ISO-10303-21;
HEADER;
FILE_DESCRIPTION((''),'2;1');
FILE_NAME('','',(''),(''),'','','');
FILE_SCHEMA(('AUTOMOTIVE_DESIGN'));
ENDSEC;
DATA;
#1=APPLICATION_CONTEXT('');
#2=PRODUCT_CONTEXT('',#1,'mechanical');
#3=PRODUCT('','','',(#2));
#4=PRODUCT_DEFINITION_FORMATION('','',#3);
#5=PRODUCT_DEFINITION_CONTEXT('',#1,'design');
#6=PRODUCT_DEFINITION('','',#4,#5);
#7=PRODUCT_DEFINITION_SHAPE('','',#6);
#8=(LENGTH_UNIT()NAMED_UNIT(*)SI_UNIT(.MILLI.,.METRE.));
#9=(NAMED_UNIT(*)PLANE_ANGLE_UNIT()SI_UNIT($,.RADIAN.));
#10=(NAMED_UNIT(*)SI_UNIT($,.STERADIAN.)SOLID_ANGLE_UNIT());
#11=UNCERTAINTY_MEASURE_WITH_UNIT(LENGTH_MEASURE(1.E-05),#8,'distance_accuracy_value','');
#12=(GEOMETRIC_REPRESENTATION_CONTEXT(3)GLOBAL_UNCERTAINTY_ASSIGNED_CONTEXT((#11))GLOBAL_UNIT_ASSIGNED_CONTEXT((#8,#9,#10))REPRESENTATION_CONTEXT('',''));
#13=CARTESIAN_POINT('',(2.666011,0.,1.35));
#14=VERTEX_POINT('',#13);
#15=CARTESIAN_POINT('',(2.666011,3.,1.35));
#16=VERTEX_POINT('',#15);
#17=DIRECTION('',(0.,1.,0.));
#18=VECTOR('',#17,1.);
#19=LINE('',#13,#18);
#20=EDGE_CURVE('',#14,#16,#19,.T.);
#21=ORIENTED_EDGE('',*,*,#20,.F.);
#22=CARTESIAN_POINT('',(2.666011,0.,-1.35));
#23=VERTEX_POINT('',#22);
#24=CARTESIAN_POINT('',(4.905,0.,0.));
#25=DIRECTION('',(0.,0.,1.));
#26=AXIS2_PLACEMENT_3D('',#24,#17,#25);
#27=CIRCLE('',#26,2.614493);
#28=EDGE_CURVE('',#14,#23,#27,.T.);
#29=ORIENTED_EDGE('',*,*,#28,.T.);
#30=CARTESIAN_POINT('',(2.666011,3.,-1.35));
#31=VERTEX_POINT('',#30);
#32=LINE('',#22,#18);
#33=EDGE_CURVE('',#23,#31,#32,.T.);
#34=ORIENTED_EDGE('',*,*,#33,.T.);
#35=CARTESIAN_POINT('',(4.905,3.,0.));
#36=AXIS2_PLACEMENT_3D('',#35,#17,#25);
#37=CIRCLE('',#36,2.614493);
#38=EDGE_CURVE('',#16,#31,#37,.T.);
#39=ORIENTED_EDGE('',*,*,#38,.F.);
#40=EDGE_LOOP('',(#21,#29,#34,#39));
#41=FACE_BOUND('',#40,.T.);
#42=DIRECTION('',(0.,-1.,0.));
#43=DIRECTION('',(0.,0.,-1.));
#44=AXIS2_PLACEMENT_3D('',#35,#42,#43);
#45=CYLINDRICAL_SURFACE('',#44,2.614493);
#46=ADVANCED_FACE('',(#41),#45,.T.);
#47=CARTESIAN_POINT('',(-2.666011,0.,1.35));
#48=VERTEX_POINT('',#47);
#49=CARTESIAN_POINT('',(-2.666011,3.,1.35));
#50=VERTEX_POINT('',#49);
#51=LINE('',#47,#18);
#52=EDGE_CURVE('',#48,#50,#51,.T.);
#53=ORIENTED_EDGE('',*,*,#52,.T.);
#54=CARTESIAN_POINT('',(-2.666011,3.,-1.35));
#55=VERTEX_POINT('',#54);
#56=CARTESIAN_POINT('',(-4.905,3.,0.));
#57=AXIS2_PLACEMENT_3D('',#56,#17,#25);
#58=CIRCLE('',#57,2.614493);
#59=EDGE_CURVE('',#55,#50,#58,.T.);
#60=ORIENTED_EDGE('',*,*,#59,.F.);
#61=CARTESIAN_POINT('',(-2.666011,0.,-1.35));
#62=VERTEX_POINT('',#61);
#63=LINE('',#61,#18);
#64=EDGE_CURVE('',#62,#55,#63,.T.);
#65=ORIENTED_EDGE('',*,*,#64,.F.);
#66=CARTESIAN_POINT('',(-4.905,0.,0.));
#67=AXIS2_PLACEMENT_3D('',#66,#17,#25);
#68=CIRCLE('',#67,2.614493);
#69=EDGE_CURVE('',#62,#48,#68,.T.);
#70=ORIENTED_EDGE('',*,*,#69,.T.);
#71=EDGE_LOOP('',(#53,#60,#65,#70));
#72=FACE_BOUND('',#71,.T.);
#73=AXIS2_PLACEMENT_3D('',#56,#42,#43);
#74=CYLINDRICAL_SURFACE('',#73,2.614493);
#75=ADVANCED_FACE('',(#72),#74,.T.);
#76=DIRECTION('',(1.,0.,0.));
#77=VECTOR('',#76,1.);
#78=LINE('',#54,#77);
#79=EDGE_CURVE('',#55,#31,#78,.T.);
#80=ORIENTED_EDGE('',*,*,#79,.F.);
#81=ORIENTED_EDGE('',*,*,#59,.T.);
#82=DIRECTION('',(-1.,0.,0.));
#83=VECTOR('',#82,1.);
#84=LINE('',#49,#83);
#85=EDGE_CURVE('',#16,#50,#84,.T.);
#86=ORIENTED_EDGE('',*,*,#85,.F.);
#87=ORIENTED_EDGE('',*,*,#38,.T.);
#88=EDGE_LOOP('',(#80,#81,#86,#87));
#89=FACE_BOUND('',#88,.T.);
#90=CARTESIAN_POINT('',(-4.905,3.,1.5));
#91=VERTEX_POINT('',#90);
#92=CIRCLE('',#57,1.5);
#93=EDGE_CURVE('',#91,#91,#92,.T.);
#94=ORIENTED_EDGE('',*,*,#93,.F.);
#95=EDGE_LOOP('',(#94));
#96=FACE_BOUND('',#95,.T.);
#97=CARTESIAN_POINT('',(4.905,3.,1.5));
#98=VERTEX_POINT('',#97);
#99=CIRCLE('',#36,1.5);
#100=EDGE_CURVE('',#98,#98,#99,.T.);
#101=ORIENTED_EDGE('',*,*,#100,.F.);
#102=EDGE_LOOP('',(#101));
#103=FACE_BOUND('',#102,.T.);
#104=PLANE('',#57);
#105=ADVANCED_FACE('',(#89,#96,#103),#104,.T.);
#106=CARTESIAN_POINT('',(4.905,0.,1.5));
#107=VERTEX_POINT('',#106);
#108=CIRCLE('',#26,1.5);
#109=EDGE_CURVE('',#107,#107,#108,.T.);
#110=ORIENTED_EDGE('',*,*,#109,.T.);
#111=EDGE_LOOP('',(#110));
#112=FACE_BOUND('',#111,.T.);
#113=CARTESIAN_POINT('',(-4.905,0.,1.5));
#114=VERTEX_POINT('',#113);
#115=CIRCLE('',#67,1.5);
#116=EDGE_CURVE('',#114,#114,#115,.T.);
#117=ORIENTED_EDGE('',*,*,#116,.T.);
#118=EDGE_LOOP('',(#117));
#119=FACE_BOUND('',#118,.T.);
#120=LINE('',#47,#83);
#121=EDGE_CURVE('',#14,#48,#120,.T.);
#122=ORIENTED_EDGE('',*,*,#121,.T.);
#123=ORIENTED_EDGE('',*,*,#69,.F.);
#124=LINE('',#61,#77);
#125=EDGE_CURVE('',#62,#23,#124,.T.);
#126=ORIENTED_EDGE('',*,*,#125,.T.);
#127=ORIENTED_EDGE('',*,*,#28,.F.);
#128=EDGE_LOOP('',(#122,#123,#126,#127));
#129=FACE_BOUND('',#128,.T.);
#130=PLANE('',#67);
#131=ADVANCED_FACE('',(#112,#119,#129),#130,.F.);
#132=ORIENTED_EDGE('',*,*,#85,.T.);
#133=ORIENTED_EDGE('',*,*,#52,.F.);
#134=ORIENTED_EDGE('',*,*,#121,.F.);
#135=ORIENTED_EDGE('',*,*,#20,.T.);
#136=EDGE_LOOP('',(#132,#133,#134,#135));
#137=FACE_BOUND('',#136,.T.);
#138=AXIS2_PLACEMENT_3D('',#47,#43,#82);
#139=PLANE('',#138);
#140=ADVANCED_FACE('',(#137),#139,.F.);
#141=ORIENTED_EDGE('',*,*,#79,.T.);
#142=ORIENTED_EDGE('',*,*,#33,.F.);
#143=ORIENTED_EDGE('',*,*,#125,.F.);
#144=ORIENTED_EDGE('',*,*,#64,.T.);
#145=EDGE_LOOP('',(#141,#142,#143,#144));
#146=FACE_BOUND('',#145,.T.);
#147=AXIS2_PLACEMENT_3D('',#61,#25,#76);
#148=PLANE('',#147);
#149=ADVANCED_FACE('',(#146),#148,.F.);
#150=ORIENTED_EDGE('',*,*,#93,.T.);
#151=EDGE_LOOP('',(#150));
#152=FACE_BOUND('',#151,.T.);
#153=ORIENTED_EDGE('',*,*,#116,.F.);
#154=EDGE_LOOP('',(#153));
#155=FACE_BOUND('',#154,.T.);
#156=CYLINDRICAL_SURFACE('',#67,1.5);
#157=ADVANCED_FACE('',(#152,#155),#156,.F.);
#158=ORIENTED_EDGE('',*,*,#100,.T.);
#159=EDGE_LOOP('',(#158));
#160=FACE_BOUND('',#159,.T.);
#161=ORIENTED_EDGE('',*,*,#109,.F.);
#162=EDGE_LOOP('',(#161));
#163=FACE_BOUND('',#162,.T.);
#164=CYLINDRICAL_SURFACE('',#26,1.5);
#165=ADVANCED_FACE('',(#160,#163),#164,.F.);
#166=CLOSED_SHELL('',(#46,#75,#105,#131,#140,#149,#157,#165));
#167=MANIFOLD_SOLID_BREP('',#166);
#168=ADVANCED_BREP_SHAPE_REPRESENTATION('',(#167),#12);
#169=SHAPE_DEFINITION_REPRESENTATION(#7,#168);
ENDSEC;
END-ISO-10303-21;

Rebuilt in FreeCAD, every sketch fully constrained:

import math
import FreeCAD as App
import Part
import Sketcher
from FreeCAD import Vector

doc = App.newDocument("Part")
body = doc.addObject("PartDesign::Body", "Body")

sketch1 = doc.addObject("Sketcher::SketchObject", "Sketch")
body.addObject(sketch1)
sketch1.AttachmentSupport = (doc.XZ_Plane, [""])
sketch1.MapMode = "FlatFace"
sketch1.addGeometry([
    Part.LineSegment(Vector(4.9, -2.6, 0), Vector(-4.9, -2.6, 0)),
    Part.ArcOfCircle(Part.Circle(Vector(-4.9, 0, 0), Vector(0, 0, 1), 2.6), math.radians(90), math.radians(270)),
    Part.LineSegment(Vector(-4.9, 2.6, 0), Vector(4.9, 2.6, 0)),
    Part.ArcOfCircle(Part.Circle(Vector(4.9, 0, 0), Vector(0, 0, 1), 2.6), math.radians(-90), math.radians(90)),
], False)
sketch1.addConstraint([
    Sketcher.Constraint("Tangent", 0, 2, 1, 2),
    Sketcher.Constraint("Tangent", 1, 1, 2, 1),
    Sketcher.Constraint("Tangent", 2, 2, 3, 2),
    Sketcher.Constraint("Tangent", 3, 1, 0, 1),
    Sketcher.Constraint("Horizontal", 0),
    Sketcher.Constraint("Horizontal", 2),
    Sketcher.Constraint("Symmetric", 1, 3, 3, 3, -1, 1),
    Sketcher.Constraint("DistanceX", 0, 2, 0, 1, 9.81),
    Sketcher.Constraint("Radius", 1, 2.614493),
])
pad1 = doc.addObject("PartDesign::Pad", "Pad")
body.addObject(pad1)
pad1.Profile = sketch1
pad1.Length = 3
pad1.Reversed = True

sketch2 = doc.addObject("Sketcher::SketchObject", "Sketch001")
body.addObject(sketch2)
sketch2.AttachmentSupport = (doc.XZ_Plane, [""])
sketch2.MapMode = "FlatFace"
sketch2.AttachmentOffset = App.Placement(Vector(0, 0, -3), App.Rotation())
sketch2.addGeometry([
    Part.Circle(Vector(-4.9, 0, 0), Vector(0, 0, 1), 1.5),
    Part.Circle(Vector(4.9, 0, 0), Vector(0, 0, 1), 1.5),
], False)
sketch2.addConstraint([
    Sketcher.Constraint("Equal", 0, 1),
    Sketcher.Constraint("Symmetric", 0, 3, 1, 3, -1, 1),
    Sketcher.Constraint("PointOnObject", 0, 3, -1),
    Sketcher.Constraint("Diameter", 0, 3.0),
    Sketcher.Constraint("DistanceX", 0, 3, 1, 3, 9.81),
])
pocket1 = doc.addObject("PartDesign::Pocket", "Pocket")
body.addObject(pocket1)
pocket1.Profile = sketch2
pocket1.Type = "ThroughAll"
pocket1.Reversed = True

sketch3 = doc.addObject("Sketcher::SketchObject", "Sketch002")
body.addObject(sketch3)
sketch3.AttachmentSupport = (doc.XZ_Plane, [""])
sketch3.MapMode = "FlatFace"
sketch3.AttachmentOffset = App.Placement(Vector(0, 0, -3), App.Rotation())
sketch3.addGeometry([
    Part.LineSegment(Vector(-2.7, -1.4, 0), Vector(2.7, -1.4, 0)),
    Part.ArcOfCircle(Part.Circle(Vector(4.9, 0, 0), Vector(0, 0, 1), 2.6), math.radians(-149), math.radians(-90)),
    Part.LineSegment(Vector(4.9, -2.6, 0), Vector(-4.9, -2.6, 0)),
    Part.ArcOfCircle(Part.Circle(Vector(-4.9, 0, 0), Vector(0, 0, 1), 2.6), math.radians(-90), math.radians(-31)),
    Part.LineSegment(Vector(2.7, 1.4, 0), Vector(-2.7, 1.4, 0)),
    Part.ArcOfCircle(Part.Circle(Vector(-4.9, 0, 0), Vector(0, 0, 1), 2.6), math.radians(31), math.radians(90)),
    Part.LineSegment(Vector(-4.9, 2.6, 0), Vector(4.9, 2.6, 0)),
    Part.ArcOfCircle(Part.Circle(Vector(4.9, 0, 0), Vector(0, 0, 1), 2.6), math.radians(90), math.radians(149)),
], False)
sketch3.addConstraint([
    Sketcher.Constraint("Coincident", 0, 2, 1, 1),
    Sketcher.Constraint("Tangent", 1, 2, 2, 1),
    Sketcher.Constraint("Tangent", 2, 2, 3, 1),
    Sketcher.Constraint("Coincident", 3, 2, 0, 1),
    Sketcher.Constraint("Coincident", 4, 2, 5, 1),
    Sketcher.Constraint("Tangent", 5, 2, 6, 1),
    Sketcher.Constraint("Tangent", 6, 2, 7, 1),
    Sketcher.Constraint("Coincident", 7, 2, 4, 1),
    Sketcher.Constraint("Horizontal", 0),
    Sketcher.Constraint("Horizontal", 2),
    Sketcher.Constraint("Horizontal", 4),
    Sketcher.Constraint("Horizontal", 6),
    Sketcher.Constraint("Coincident", 5, 3, 3, 3),
    Sketcher.Constraint("Coincident", 7, 3, 1, 3),
    Sketcher.Constraint("Equal", 1, 3),
    Sketcher.Constraint("Equal", 3, 5),
    Sketcher.Constraint("Symmetric", 1, 3, 3, 3, -1, 1),
    Sketcher.Constraint("Vertical", 3, 2, 4, 2),
    Sketcher.Constraint("DistanceX", 2, 2, 2, 1, 9.81),
    Sketcher.Constraint("DistanceY", 3, 2, 4, 2, 2.7),
    Sketcher.Constraint("Radius", 1, 2.614493),
])
pocket2 = doc.addObject("PartDesign::Pocket", "Pocket001")
body.addObject(pocket2)
pocket2.Profile = sketch3
pocket2.Type = "ThroughAll"
pocket2.Reversed = True

doc.recompute()
